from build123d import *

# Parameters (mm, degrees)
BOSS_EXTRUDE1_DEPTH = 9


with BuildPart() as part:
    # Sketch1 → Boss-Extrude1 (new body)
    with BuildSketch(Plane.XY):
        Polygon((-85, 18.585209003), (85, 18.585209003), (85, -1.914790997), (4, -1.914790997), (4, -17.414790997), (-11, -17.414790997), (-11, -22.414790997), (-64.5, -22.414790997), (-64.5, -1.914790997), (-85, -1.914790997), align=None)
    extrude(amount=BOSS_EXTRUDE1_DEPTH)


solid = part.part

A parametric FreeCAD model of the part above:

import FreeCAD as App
import Part
import Sketcher
from FreeCAD import Vector


def add_polygon(sketch, points):
    """Adds a closed chain of lines whose ends are joined by coincident constraints."""
    first, n = sketch.GeometryCount, len(points)
    for a, b in zip(points, points[1:] + points[:1]):
        sketch.addGeometry(Part.LineSegment(App.Vector(*a, 0), App.Vector(*b, 0)), False)
    for i in range(n):
        sketch.addConstraint(Sketcher.Constraint("Coincident", first + i, 2, first + (i + 1) % n, 1))

doc = App.newDocument("Part")
body = doc.addObject("PartDesign::Body", "Body")

sketch1 = body.newObject("Sketcher::SketchObject", "Sketch")
sketch1.AttachmentSupport = (doc.getObject("XY_Plane"), [""])
sketch1.MapMode = "FlatFace"
add_polygon(sketch1, [(85, 19), (-85, 19), (-85, -2), (-64, -2), (-64, -22), (-11, -22), (-11, -17), (4, -17), (4, -2), (85, -2)])
sketch1.addConstraint([
    Sketcher.Constraint("Horizontal", 0),
    Sketcher.Constraint("Vertical", 1),
    Sketcher.Constraint("Horizontal", 2),
    Sketcher.Constraint("Vertical", 3),
    Sketcher.Constraint("Horizontal", 4),
    Sketcher.Constraint("Vertical", 5),
    Sketcher.Constraint("Horizontal", 6),
    Sketcher.Constraint("Vertical", 7),
    Sketcher.Constraint("Horizontal", 8),
    Sketcher.Constraint("Vertical", 9),
    Sketcher.Constraint("Symmetric", 1, 2, 8, 2, -2),
    Sketcher.Constraint("Equal", 2, 1),
    Sketcher.Constraint("Equal", 1, 3),
    Sketcher.Constraint("DistanceX", 0, 2, 0, 1, 170.0),
    Sketcher.Constraint("DistanceX", 6, 1, 6, 2, 15.0),
    Sketcher.Constraint("DistanceX", 8, 1, 8, 2, 81.0),
    Sketcher.Constraint("DistanceY", 5, 1, 5, 2, 5.0),
    Sketcher.Constraint("DistanceX", 2, 1, 2, 2, 20.5),
    Sketcher.Constraint("DistanceY", -1, 1, 0, 2, 18.585209),
])
pad1 = body.newObject("PartDesign::Pad", "Pad")
pad1.Profile = sketch1
pad1.Length = 9

doc.recompute()
